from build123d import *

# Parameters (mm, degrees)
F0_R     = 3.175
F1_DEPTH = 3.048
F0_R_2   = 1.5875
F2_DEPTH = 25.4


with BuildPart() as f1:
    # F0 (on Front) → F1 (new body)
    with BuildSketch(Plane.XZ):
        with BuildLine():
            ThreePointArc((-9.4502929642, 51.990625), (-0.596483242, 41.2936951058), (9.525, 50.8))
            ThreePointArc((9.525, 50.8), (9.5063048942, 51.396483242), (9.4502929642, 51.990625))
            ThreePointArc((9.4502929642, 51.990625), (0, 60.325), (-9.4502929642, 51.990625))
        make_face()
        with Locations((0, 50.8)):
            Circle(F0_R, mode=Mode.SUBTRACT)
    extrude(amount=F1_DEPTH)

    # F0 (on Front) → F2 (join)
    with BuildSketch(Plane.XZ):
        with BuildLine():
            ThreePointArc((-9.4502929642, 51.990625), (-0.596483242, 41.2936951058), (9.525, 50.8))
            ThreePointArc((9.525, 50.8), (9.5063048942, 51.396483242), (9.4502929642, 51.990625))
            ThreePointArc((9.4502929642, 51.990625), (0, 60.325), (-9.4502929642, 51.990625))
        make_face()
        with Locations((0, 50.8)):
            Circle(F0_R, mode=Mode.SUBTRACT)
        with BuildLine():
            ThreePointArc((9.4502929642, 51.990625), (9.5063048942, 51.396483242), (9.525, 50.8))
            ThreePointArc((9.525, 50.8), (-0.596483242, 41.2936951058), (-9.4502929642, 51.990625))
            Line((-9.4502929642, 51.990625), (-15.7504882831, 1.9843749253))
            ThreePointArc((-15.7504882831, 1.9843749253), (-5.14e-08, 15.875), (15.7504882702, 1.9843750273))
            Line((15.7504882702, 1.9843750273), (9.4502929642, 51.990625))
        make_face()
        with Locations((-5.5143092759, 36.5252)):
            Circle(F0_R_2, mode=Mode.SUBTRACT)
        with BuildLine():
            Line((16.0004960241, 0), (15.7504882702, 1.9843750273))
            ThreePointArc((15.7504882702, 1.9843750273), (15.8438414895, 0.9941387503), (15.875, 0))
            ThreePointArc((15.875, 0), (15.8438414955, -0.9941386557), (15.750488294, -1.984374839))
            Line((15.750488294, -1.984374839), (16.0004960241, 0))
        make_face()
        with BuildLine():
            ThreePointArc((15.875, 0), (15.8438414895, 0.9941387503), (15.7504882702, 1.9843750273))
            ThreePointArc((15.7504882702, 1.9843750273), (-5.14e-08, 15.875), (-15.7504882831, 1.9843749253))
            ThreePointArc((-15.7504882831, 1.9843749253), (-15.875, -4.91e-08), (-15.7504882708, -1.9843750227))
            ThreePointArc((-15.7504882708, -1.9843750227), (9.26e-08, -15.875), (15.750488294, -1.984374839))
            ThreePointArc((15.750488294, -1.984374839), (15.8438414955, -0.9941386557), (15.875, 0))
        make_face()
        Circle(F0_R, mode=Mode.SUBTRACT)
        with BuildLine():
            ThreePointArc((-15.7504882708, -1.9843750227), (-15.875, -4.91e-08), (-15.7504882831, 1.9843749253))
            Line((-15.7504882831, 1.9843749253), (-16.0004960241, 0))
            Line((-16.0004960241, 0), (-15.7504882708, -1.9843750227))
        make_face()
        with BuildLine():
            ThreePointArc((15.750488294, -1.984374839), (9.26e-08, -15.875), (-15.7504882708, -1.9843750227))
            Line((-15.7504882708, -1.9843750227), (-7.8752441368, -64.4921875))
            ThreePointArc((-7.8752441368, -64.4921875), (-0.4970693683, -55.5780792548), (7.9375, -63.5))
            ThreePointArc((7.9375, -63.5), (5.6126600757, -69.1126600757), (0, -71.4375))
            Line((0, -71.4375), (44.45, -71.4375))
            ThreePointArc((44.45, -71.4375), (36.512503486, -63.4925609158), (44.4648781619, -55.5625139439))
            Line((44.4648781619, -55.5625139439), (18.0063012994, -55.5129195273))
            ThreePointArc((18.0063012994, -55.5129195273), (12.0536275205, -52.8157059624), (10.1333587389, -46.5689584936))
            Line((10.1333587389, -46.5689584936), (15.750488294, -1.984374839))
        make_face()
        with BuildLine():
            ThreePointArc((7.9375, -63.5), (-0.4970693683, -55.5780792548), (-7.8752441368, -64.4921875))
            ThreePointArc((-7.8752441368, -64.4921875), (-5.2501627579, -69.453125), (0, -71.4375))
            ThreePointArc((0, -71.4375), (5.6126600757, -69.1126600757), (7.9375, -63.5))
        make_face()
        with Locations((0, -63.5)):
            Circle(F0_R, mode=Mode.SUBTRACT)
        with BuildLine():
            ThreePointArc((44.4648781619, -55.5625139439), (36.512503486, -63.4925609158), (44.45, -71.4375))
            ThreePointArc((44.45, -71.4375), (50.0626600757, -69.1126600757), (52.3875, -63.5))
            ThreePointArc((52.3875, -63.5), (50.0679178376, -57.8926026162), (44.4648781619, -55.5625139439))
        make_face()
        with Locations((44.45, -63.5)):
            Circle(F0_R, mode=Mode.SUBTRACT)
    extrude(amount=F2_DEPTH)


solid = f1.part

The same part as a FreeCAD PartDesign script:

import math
import FreeCAD as App
import Part
import Sketcher
from FreeCAD import Vector
Q = App.Units.Quantity

doc = App.newDocument("Part")
body = doc.addObject("PartDesign::Body", "Body")

sketch1 = doc.addObject("Sketcher::SketchObject", "Sketch")
body.addObject(sketch1)
sketch1.AttachmentSupport = (doc.XZ_Plane, [""])
sketch1.MapMode = "FlatFace"
sketch1.addGeometry(Part.ArcOfCircle(Part.Circle(Vector(0, 50.8, 0), Vector(0, 0, 1), 9.5), math.radians(173), math.radians(360)), False)
sketch1.addGeometry(Part.ArcOfCircle(Part.Circle(Vector(0, 50.8, 0), Vector(0, 0, 1), 9.5), math.radians(0), math.radians(7.18)), False)
sketch1.addGeometry(Part.ArcOfCircle(Part.Circle(Vector(0, 50.8, 0), Vector(0, 0, 1), 9.5), math.radians(7), math.radians(173)), False)
sketch1.addGeometry(Part.Circle(Vector(0, 50.8, 0), Vector(0, 0, 1), 3.2), False)
sketch1.addConstraint(Sketcher.Constraint("Tangent", 0, 2, 1, 1))
sketch1.addConstraint(Sketcher.Constraint("Tangent", 1, 2, 2, 1))
sketch1.addConstraint(Sketcher.Constraint("Tangent", 2, 2, 0, 1))
sketch1.addConstraint(Sketcher.Constraint("Coincident", 3, 3, 0, 3))
sketch1.addConstraint(Sketcher.Constraint("Symmetric", 1, 2, 2, 2, -2))
sketch1.addConstraint(Sketcher.Constraint("Horizontal", 3, 3, 0, 2))
sketch1.addConstraint(Sketcher.Constraint("Diameter", 3, Q("0.25 in")))
sketch1.addConstraint(Sketcher.Constraint("DistanceY", -1, 1, 0, 3, Q("2 in")))
sketch1.addConstraint(Sketcher.Constraint("Radius", 0, Q("0.375 in")))
sketch1.addConstraint(Sketcher.Constraint("DistanceY", -1, 1, 1, 2, Q("2.046875 in")))
pad1 = doc.addObject("PartDesign::Pad", "Pad")
body.addObject(pad1)
pad1.Profile = sketch1
pad1.Length = Q("0.12 in")

sketch2 = doc.addObject("Sketcher::SketchObject", "Sketch001")
body.addObject(sketch2)
sketch2.AttachmentSupport = (doc.XZ_Plane, [""])
sketch2.MapMode = "FlatFace"
sketch2.addGeometry(Part.ArcOfCircle(Part.Circle(Vector(0, 50.8, 0), Vector(0, 0, 1), 9.5), math.radians(7), math.radians(173)), False)
sketch2.addGeometry(Part.LineSegment(Vector(-9.5, 52, 0), Vector(-15.8, 2, 0)), False)
sketch2.addGeometry(Part.LineSegment(Vector(-15.8, 2, 0), Vector(-16, 0, 0)), False)
sketch2.addGeometry(Part.LineSegment(Vector(-16, 0, 0), Vector(-15.8, -2, 0)), False)
sketch2.addGeometry(Part.LineSegment(Vector(-15.8, -2, 0), Vector(-7.9, -64.5, 0)), False)
sketch2.addGeometry(Part.ArcOfCircle(Part.Circle(Vector(0, -63.5, 0), Vector(0, 0, 1), 7.9), math.radians(-173), math.radians(-90)), False)
sketch2.addGeometry(Part.LineSegment(Vector(0, -71.4, 0), Vector(44.5, -71.4, 0)), False)
sketch2.addGeometry(Part.ArcOfCircle(Part.Circle(Vector(44.5, -63.5, 0), Vector(0, 0, 1), 7.9), math.radians(-90), math.radians(0)), False)
sketch2.addGeometry(Part.ArcOfCircle(Part.Circle(Vector(44.5, -63.5, 0), Vector(0, 0, 1), 7.9), math.radians(0), math.radians(90)), False)
sketch2.addGeometry(Part.LineSegment(Vector(44.5, -55.6, 0), Vector(18, -55.5, 0)), False)
sketch2.addGeometry(Part.ArcOfCircle(Part.Circle(Vector(18, -47.6, 0), Vector(0, 0, 1), 8), math.radians(173), math.radians(270)), False)
sketch2.addGeometry(Part.LineSegment(Vector(10.1, -46.6, 0), Vector(15.8, -2, 0)), False)
sketch2.addGeometry(Part.LineSegment(Vector(15.8, -2, 0), Vector(16, 0, 0)), False)
sketch2.addGeometry(Part.LineSegment(Vector(16, 0, 0), Vector(15.8, 2, 0)), False)
sketch2.addGeometry(Part.LineSegment(Vector(15.8, 2, 0), Vector(9.5, 52, 0)), False)
sketch2.addGeometry(Part.Circle(Vector(0, -63.5, 0), Vector(0, 0, 1), 3.2), False)
sketch2.addGeometry(Part.Circle(Vector(44.5, -63.5, 0), Vector(0, 0, 1), 3.2), False)
sketch2.addGeometry(Part.Circle(Vector(0, 0, 0), Vector(0, 0, 1), 3.2), False)
sketch2.addGeometry(Part.Circle(Vector(-5.5, 36.5, 0), Vector(0, 0, 1), 1.6), False)
sketch2.addGeometry(Part.Circle(Vector(0, 50.8, 0), Vector(0, 0, 1), 3.2), False)
sketch2.addConstraint(Sketcher.Constraint("Tangent", 0, 2, 1, 1))
sketch2.addConstraint(Sketcher.Constraint("Coincident", 1, 2, 2, 1))
sketch2.addConstraint(Sketcher.Constraint("Coincident", 2, 2, 3, 1))
sketch2.addConstraint(Sketcher.Constraint("Coincident", 3, 2, 4, 1))
sketch2.addConstraint(Sketcher.Constraint("Tangent", 4, 2, 5, 1))
sketch2.addConstraint(Sketcher.Constraint("Tangent", 5, 2, 6, 1))
sketch2.addConstraint(Sketcher.Constraint("Tangent", 6, 2, 7, 1))
sketch2.addConstraint(Sketcher.Constraint("Tangent", 7, 2, 8, 1))
sketch2.addConstraint(Sketcher.Constraint("Tangent", 8, 2, 9, 1))
sketch2.addConstraint(Sketcher.Constraint("Tangent", 9, 2, 10, 2))
sketch2.addConstraint(Sketcher.Constraint("Tangent", 10, 1, 11, 1))
sketch2.addConstraint(Sketcher.Constraint("Coincident", 11, 2, 12, 1))
sketch2.addConstraint(Sketcher.Constraint("Coincident", 12, 2, 13, 1))
sketch2.addConstraint(Sketcher.Constraint("Coincident", 13, 2, 14, 1))
sketch2.addConstraint(Sketcher.Constraint("Tangent", 14, 2, 0, 1))
sketch2.addConstraint(Sketcher.Constraint("Horizontal", 6))
sketch2.addConstraint(Sketcher.Constraint("Coincident", 17, 3, -1, 1))
sketch2.addConstraint(Sketcher.Constraint("Coincident", 15, 3, 5, 3))
sketch2.addConstraint(Sketcher.Constraint("Coincident", 16, 3, 7, 3))
sketch2.addConstraint(Sketcher.Constraint("Coincident", 19, 3, 0, 3))
sketch2.addConstraint(Sketcher.Constraint("Equal", 5, 7))
sketch2.addConstraint(Sketcher.Constraint("Equal", 7, 8))
sketch2.addConstraint(Sketcher.Constraint("Equal", 15, 16))
sketch2.addConstraint(Sketcher.Constraint("Equal", 16, 17))
sketch2.addConstraint(Sketcher.Constraint("Equal", 17, 19))
sketch2.addConstraint(Sketcher.Constraint("Symmetric", 1, 2, 11, 2, -1, 1))
sketch2.addConstraint(Sketcher.Constraint("Symmetric", 2, 2, 12, 2, -1, 1))
sketch2.addConstraint(Sketcher.Constraint("Symmetric", 3, 2, 13, 2, -1, 1))
sketch2.addConstraint(Sketcher.Constraint("Symmetric", 3, 2, 11, 2, -2))
sketch2.addConstraint(Sketcher.Constraint("PointOnObject", 0, 3, -2))
sketch2.addConstraint(Sketcher.Constraint("PointOnObject", 5, 3, -2))
sketch2.addConstraint(Sketcher.Constraint("PointOnObject", 2, 2, -1))
sketch2.addConstraint(Sketcher.Constraint("Parallel", 1, 2))
sketch2.addConstraint(Sketcher.Constraint("Parallel", 3, 4))
sketch2.addConstraint(Sketcher.Constraint("Parallel", 2, 11))
sketch2.addConstraint(Sketcher.Constraint("Horizontal", 16, 3, 7, 2))
sketch2.addConstraint(Sketcher.Constraint("Diameter", 15, Q("0.25 in")))
sketch2.addConstraint(Sketcher.Constraint("Diameter", 18, Q("0.125 in")))
sketch2.addConstraint(Sketcher.Constraint("DistanceY", -1, 1, 0, 3, Q("2 in")))
sketch2.addConstraint(Sketcher.Constraint("Radius", 0, Q("0.375 in")))
sketch2.addConstraint(Sketcher.Constraint("Radius", 5, Q("0.3125 in")))
sketch2.addConstraint(Sketcher.Constraint("Radius", 10, Q("0.313 in")))
sketch2.addConstraint(Sketcher.Constraint("DistanceX", 6, 1, 6, 2, Q("1.75 in")))
sketch2.addConstraint(Sketcher.Constraint("DistanceY", 5, 3, -1, 1, Q("2.5 in")))
sketch2.addConstraint(Sketcher.Constraint("DistanceY", -1, 1, 18, 3, Q("1.438 in")))
sketch2.addConstraint(Sketcher.Constraint("DistanceY", -1, 1, 1, 2, Q("0.078125 in")))
sketch2.addConstraint(Sketcher.Constraint("DistanceX", 4, 2, 10, 1, Q("0.7090001 in")))
sketch2.addConstraint(Sketcher.Constraint("DistanceX", 18, 3, -1, 1, Q("5.514309 mm")))
pad2 = doc.addObject("PartDesign::Pad", "Pad001")
body.addObject(pad2)
pad2.Profile = sketch2
pad2.Length = Q("1 in")

doc.recompute()
